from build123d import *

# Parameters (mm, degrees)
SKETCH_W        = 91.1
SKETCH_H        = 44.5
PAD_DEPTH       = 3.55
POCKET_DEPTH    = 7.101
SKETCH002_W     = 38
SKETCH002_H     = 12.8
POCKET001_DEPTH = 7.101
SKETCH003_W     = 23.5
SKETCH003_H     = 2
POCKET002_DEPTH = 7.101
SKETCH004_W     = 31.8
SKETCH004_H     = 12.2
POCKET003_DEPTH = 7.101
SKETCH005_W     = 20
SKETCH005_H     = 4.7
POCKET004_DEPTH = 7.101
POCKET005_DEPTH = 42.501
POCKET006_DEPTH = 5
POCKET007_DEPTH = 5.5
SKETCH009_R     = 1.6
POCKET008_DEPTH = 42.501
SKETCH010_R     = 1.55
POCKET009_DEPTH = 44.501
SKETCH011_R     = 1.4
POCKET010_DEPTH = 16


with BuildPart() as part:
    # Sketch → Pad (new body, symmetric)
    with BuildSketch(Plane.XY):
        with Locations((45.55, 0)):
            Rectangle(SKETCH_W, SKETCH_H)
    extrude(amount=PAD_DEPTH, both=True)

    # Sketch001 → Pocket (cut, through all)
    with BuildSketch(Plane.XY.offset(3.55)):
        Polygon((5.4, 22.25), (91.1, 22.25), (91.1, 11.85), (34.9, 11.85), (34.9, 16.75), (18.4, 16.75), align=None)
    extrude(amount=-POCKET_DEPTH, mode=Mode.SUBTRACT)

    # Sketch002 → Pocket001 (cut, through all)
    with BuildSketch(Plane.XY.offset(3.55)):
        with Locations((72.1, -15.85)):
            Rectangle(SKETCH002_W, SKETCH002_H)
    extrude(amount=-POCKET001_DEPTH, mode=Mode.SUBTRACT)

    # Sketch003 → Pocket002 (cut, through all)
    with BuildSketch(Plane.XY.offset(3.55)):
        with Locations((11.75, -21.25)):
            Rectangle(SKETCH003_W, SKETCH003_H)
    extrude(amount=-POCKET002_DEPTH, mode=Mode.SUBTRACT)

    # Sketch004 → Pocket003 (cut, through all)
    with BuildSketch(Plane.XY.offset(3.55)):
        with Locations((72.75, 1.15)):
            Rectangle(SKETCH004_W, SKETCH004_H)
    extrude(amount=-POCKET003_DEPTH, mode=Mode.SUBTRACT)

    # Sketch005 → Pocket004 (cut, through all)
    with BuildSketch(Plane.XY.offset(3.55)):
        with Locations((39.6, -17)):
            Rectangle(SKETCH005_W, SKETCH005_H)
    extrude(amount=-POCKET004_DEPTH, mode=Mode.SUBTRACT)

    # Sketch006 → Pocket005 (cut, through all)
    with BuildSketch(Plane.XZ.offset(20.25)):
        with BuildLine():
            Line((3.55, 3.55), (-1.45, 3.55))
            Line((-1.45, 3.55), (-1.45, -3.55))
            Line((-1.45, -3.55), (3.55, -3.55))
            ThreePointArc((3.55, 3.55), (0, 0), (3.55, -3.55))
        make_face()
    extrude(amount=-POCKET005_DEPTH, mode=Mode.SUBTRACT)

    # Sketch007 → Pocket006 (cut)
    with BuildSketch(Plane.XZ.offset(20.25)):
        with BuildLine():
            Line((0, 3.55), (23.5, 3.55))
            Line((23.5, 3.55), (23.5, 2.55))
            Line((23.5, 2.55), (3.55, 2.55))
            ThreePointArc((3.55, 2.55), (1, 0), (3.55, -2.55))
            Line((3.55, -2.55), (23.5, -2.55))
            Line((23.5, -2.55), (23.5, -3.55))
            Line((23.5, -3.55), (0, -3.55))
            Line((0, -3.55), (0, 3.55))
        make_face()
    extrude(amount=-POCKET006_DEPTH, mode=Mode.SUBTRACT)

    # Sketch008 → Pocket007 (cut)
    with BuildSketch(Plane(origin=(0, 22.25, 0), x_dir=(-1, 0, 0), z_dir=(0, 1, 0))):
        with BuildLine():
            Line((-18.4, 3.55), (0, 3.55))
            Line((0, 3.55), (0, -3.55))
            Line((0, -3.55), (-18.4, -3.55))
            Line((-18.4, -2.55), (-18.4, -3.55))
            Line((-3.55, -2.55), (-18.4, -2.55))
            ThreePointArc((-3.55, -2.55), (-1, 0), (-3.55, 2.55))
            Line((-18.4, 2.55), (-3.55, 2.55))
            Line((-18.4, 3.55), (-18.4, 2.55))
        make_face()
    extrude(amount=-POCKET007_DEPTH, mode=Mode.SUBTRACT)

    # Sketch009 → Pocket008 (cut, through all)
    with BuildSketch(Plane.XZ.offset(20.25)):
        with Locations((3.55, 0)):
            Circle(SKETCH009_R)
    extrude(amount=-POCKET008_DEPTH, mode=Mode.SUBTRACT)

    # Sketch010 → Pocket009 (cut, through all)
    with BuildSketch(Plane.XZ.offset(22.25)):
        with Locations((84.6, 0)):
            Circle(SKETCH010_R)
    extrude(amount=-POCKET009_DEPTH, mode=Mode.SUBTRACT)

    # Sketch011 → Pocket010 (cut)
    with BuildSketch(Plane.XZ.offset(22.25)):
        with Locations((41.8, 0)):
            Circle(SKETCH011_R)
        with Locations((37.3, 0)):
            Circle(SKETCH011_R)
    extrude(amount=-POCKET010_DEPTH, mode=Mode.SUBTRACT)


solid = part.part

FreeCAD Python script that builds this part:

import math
import FreeCAD as App
import Part
import Sketcher


def add_polygon(sketch, points):
    """Adds a closed chain of lines whose ends are joined by coincident constraints."""
    first, n = sketch.GeometryCount, len(points)
    for a, b in zip(points, points[1:] + points[:1]):
        sketch.addGeometry(Part.LineSegment(App.Vector(*a, 0), App.Vector(*b, 0)), False)
    for i in range(n):
        sketch.addConstraint(Sketcher.Constraint("Coincident", first + i, 2, first + (i + 1) % n, 1))

doc = App.newDocument("Part")
body = doc.addObject("PartDesign::Body", "Body")

sketch1 = body.newObject("Sketcher::SketchObject", "Sketch")
sketch1.AttachmentSupport = (doc.getObject("XY_Plane"), [""])
sketch1.MapMode = "FlatFace"
add_polygon(sketch1, [(0, 22.25), (0, -22.25), (91.1, -22.25), (91.1, 22.25)])
sketch1.addConstraint([
    Sketcher.Constraint("Vertical", 0),
    Sketcher.Constraint("Horizontal", 1),
    Sketcher.Constraint("Vertical", 2),
    Sketcher.Constraint("Horizontal", 3),
    Sketcher.Constraint("Symmetric", 0, 2, 3, 2, -1, 1),
    Sketcher.Constraint("DistanceX", 1, 1, 1, 2, 91.1),
    Sketcher.Constraint("DistanceY", 0, 2, 0, 1, 44.5),
])
pad1 = body.newObject("PartDesign::Pad", "Pad")
pad1.Profile = sketch1
pad1.Length = 7.1
pad1.Midplane = True

sketch2 = body.newObject("Sketcher::SketchObject", "Sketch001")
sketch2.AttachmentSupport = (doc.getObject("XY_Plane"), [""])
sketch2.MapMode = "FlatFace"
sketch2.AttachmentOffset = App.Placement(App.Vector(0, 0, 3.55), App.Rotation())
add_polygon(sketch2, [(91.1, 22.25), (5.4, 22.25), (18.4, 16.75), (34.9, 16.75), (34.9, 11.85), (91.1, 11.85)])
sketch2.addConstraint([
    Sketcher.Constraint("Horizontal", 0),
    Sketcher.Constraint("Horizontal", 2),
    Sketcher.Constraint("Vertical", 3),
    Sketcher.Constraint("Horizontal", 4),
    Sketcher.Constraint("Vertical", 5),
    Sketcher.Constraint("DistanceX", 0, 2, 0, 1, 85.7),
    Sketcher.Constraint("DistanceX", 2, 1, 2, 2, 16.5),
    Sketcher.Constraint("DistanceX", 4, 1, 4, 2, 56.2),
    Sketcher.Constraint("DistanceY", 3, 2, 3, 1, 4.9),
    Sketcher.Constraint("DistanceY", 5, 1, 5, 2, 10.4),
    Sketcher.Constraint("DistanceX", -1, 1, 0, 2, 5.4),
    Sketcher.Constraint("DistanceY", -1, 1, 0, 2, 22.25),
])
pocket1 = body.newObject("PartDesign::Pocket", "Pocket")
pocket1.Profile = sketch2
pocket1.Type = "ThroughAll"

sketch3 = body.newObject("Sketcher::SketchObject", "Sketch002")
sketch3.AttachmentSupport = (doc.getObject("XY_Plane"), [""])
sketch3.MapMode = "FlatFace"
sketch3.AttachmentOffset = App.Placement(App.Vector(0, 0, 3.55), App.Rotation())
add_polygon(sketch3, [(53.1, -9.45), (53.1, -22.25), (91.1, -22.25), (91.1, -9.45)])
sketch3.addConstraint([
    Sketcher.Constraint("Vertical", 0),
    Sketcher.Constraint("Horizontal", 1),
    Sketcher.Constraint("Vertical", 2),
    Sketcher.Constraint("Horizontal", 3),
    Sketcher.Constraint("DistanceX", 1, 1, 1, 2, 38.0),
    Sketcher.Constraint("DistanceY", 0, 2, 0, 1, 12.8),
    Sketcher.Constraint("DistanceX", -1, 1, 0, 2, 53.1),
    Sketcher.Constraint("DistanceY", 0, 2, -1, 1, 22.25),
])
pocket2 = body.newObject("PartDesign::Pocket", "Pocket001")
pocket2.Profile = sketch3
pocket2.Type = "ThroughAll"

sketch4 = body.newObject("Sketcher::SketchObject", "Sketch003")
sketch4.AttachmentSupport = (doc.getObject("XY_Plane"), [""])
sketch4.MapMode = "FlatFace"
sketch4.AttachmentOffset = App.Placement(App.Vector(0, 0, 3.55), App.Rotation())
add_polygon(sketch4, [(0, -20.25), (0, -22.25), (23.5, -22.25), (23.5, -20.25)])
sketch4.addConstraint([
    Sketcher.Constraint("Vertical", 0),
    Sketcher.Constraint("Horizontal", 1),
    Sketcher.Constraint("Vertical", 2),
    Sketcher.Constraint("Horizontal", 3),
    Sketcher.Constraint("PointOnObject", 0, 2, -2),
    Sketcher.Constraint("DistanceY", 0, 2, 0, 1, 2.0),
    Sketcher.Constraint("DistanceX", 1, 1, 1, 2, 23.5),
    Sketcher.Constraint("DistanceY", 0, 2, -1, 1, 22.25),
])
pocket3 = body.newObject("PartDesign::Pocket", "Pocket002")
pocket3.Profile = sketch4
pocket3.Type = "ThroughAll"

sketch5 = body.newObject("Sketcher::SketchObject", "Sketch004")
sketch5.AttachmentSupport = (doc.getObject("XY_Plane"), [""])
sketch5.MapMode = "FlatFace"
sketch5.AttachmentOffset = App.Placement(App.Vector(0, 0, 3.55), App.Rotation())
add_polygon(sketch5, [(56.85, 7.25), (56.85, -4.95), (88.65, -4.95), (88.65, 7.25)])
sketch5.addConstraint([
    Sketcher.Constraint("Vertical", 0),
    Sketcher.Constraint("Horizontal", 1),
    Sketcher.Constraint("Vertical", 2),
    Sketcher.Constraint("Horizontal", 3),
    Sketcher.Constraint("DistanceX", 1, 1, 1, 2, 31.8),
    Sketcher.Constraint("DistanceY", 0, 2, 0, 1, 12.2),
    Sketcher.Constraint("DistanceX", -1, 1, 0, 2, 56.85),
    Sketcher.Constraint("DistanceY", 0, 2, -1, 1, 4.95),
])
pocket4 = body.newObject("PartDesign::Pocket", "Pocket003")
pocket4.Profile = sketch5
pocket4.Type = "ThroughAll"

sketch6 = body.newObject("Sketcher::SketchObject", "Sketch005")
sketch6.AttachmentSupport = (doc.getObject("XY_Plane"), [""])
sketch6.MapMode = "FlatFace"
sketch6.AttachmentOffset = App.Placement(App.Vector(0, 0, 3.55), App.Rotation())
add_polygon(sketch6, [(29.6, -14.65), (29.6, -19.35), (49.6, -19.35), (49.6, -14.65)])
sketch6.addConstraint([
    Sketcher.Constraint("Vertical", 0),
    Sketcher.Constraint("Horizontal", 1),
    Sketcher.Constraint("Vertical", 2),
    Sketcher.Constraint("Horizontal", 3),
    Sketcher.Constraint("DistanceX", 1, 1, 1, 2, 20.0),
    Sketcher.Constraint("DistanceY", 0, 2, 0, 1, 4.7),
    Sketcher.Constraint("DistanceX", -1, 1, 0, 2, 29.6),
    Sketcher.Constraint("DistanceY", 0, 2, -1, 1, 19.35),
])
pocket5 = body.newObject("PartDesign::Pocket", "Pocket004")
pocket5.Profile = sketch6
pocket5.Type = "ThroughAll"

sketch7 = body.newObject("Sketcher::SketchObject", "Sketch006")
sketch7.AttachmentSupport = (doc.getObject("XZ_Plane"), [""])
sketch7.MapMode = "FlatFace"
sketch7.AttachmentOffset = App.Placement(App.Vector(0, 0, 20.25), App.Rotation())
sketch7.addGeometry([
    Part.LineSegment(App.Vector(3.55, 3.55, 0), App.Vector(-1.45, 3.55, 0)),
    Part.LineSegment(App.Vector(-1.45, 3.55, 0), App.Vector(-1.45, -3.55, 0)),
    Part.LineSegment(App.Vector(-1.45, -3.55, 0), App.Vector(3.55, -3.55, 0)),
    Part.ArcOfCircle(Part.Circle(App.Vector(3.55, 0, 0), App.Vector(0, 0, 1), 3.55), math.radians(90), math.radians(270)),
], False)
sketch7.addConstraint([
    Sketcher.Constraint("Coincident", 0, 2, 1, 1),
    Sketcher.Constraint("Coincident", 1, 2, 2, 1),
    Sketcher.Constraint("Tangent", 2, 2, 3, 2),
    Sketcher.Constraint("Tangent", 3, 1, 0, 1),
    Sketcher.Constraint("Horizontal", 0),
    Sketcher.Constraint("Vertical", 1),
    Sketcher.Constraint("Horizontal", 2),
    Sketcher.Constraint("PointOnObject", 3, 3, -1),
    Sketcher.Constraint("DistanceX", 0, 2, 0, 1, 5.0),
    Sketcher.Constraint("Radius", 3, 3.55),
    Sketcher.Constraint("DistanceX", -1, 1, 3, 3, 3.55),
])
pocket6 = body.newObject("PartDesign::Pocket", "Pocket005")
pocket6.Profile = sketch7
pocket6.Type = "ThroughAll"

sketch8 = body.newObject("Sketcher::SketchObject", "Sketch007")
sketch8.AttachmentSupport = (doc.getObject("XZ_Plane"), [""])
sketch8.MapMode = "FlatFace"
sketch8.AttachmentOffset = App.Placement(App.Vector(0, 0, 20.25), App.Rotation())
sketch8.addGeometry([
    Part.LineSegment(App.Vector(23.5, 3.55, 0), App.Vector(0, 3.55, 0)),
    Part.LineSegment(App.Vector(0, 3.55, 0), App.Vector(0, -3.55, 0)),
    Part.LineSegment(App.Vector(0, -3.55, 0), App.Vector(23.5, -3.55, 0)),
    Part.LineSegment(App.Vector(23.5, -3.55, 0), App.Vector(23.5, -2.55, 0)),
    Part.LineSegment(App.Vector(23.5, -2.55, 0), App.Vector(3.55, -2.55, 0)),
    Part.ArcOfCircle(Part.Circle(App.Vector(3.55, 0, 0), App.Vector(0, 0, 1), 2.55), math.radians(90), math.radians(270)),
    Part.LineSegment(App.Vector(3.55, 2.55, 0), App.Vector(23.5, 2.55, 0)),
    Part.LineSegment(App.Vector(23.5, 2.55, 0), App.Vector(23.5, 3.55, 0)),
], False)
sketch8.addConstraint([
    Sketcher.Constraint("Coincident", 0, 2, 1, 1),
    Sketcher.Constraint("Coincident", 1, 2, 2, 1),
    Sketcher.Constraint("Coincident", 2, 2, 3, 1),
    Sketcher.Constraint("Coincident", 3, 2, 4, 1),
    Sketcher.Constraint("Tangent", 4, 2, 5, 2),
    Sketcher.Constraint("Tangent", 5, 1, 6, 1),
    Sketcher.Constraint("Coincident", 6, 2, 7, 1),
    Sketcher.Constraint("Coincident", 7, 2, 0, 1),
    Sketcher.Constraint("Horizontal", 0),
    Sketcher.Constraint("Vertical", 1),
    Sketcher.Constraint("Horizontal", 2),
    Sketcher.Constraint("Vertical", 3),
    Sketcher.Constraint("Horizontal", 4),
    Sketcher.Constraint("Horizontal", 6),
    Sketcher.Constraint("Vertical", 7),
    Sketcher.Constraint("Symmetric", 0, 2, 1, 2, -1, 1),
    Sketcher.Constraint("Symmetric", 3, 2, 6, 2, -1),
    Sketcher.Constraint("DistanceY", 3, 1, 3, 2, 1.0),
    Sketcher.Constraint("Radius", 5, 2.55),
    Sketcher.Constraint("DistanceX", 0, 2, 0, 1, 23.5),
    Sketcher.Constraint("DistanceX", 4, 2, 4, 1, 19.95),
])
pocket7 = body.newObject("PartDesign::Pocket", "Pocket006")
pocket7.Profile = sketch8
pocket7.Length = 5

sketch9 = body.newObject("Sketcher::SketchObject", "Sketch008")
sketch9.AttachmentSupport = (doc.getObject("XZ_Plane"), [""])
sketch9.MapMode = "FlatFace"
sketch9.AttachmentOffset = App.Placement(App.Vector(0, 0, -22.25), App.Rotation())
sketch9.addGeometry([
    Part.LineSegment(App.Vector(0, 3.55, 0), App.Vector(18.4, 3.55, 0)),
    Part.LineSegment(App.Vector(18.4, 3.55, 0), App.Vector(18.4, 2.55, 0)),
    Part.LineSegment(App.Vector(18.4, 2.55, 0), App.Vector(3.55, 2.55, 0)),
    Part.ArcOfCircle(Part.Circle(App.Vector(3.55, 0, 0), App.Vector(0, 0, 1), 2.55), math.radians(90), math.radians(270)),
    Part.LineSegment(App.Vector(3.55, -2.55, 0), App.Vector(18.4, -2.55, 0)),
    Part.LineSegment(App.Vector(18.4, -2.55, 0), App.Vector(18.4, -3.55, 0)),
    Part.LineSegment(App.Vector(18.4, -3.55, 0), App.Vector(0, -3.55, 0)),
    Part.LineSegment(App.Vector(0, -3.55, 0), App.Vector(0, 3.55, 0)),
], False)
sketch9.addConstraint([
    Sketcher.Constraint("Coincident", 0, 2, 1, 1),
    Sketcher.Constraint("Coincident", 1, 2, 2, 1),
    Sketcher.Constraint("Tangent", 2, 2, 3, 1),
    Sketcher.Constraint("Tangent", 3, 2, 4, 1),
    Sketcher.Constraint("Coincident", 4, 2, 5, 1),
    Sketcher.Constraint("Coincident", 5, 2, 6, 1),
    Sketcher.Constraint("Coincident", 6, 2, 7, 1),
    Sketcher.Constraint("Coincident", 7, 2, 0, 1),
    Sketcher.Constraint("Horizontal", 0),
    Sketcher.Constraint("Vertical", 1),
    Sketcher.Constraint("Horizontal", 2),
    Sketcher.Constraint("Horizontal", 4),
    Sketcher.Constraint("Vertical", 5),
    Sketcher.Constraint("Horizontal", 6),
    Sketcher.Constraint("Vertical", 7),
    Sketcher.Constraint("Symmetric", 6, 2, 7, 2, -1, 1),
    Sketcher.Constraint("Symmetric", 1, 2, 4, 2, -1),
    Sketcher.Constraint("DistanceY", 1, 2, 1, 1, 1.0),
    Sketcher.Constraint("Radius", 3, 2.55),
    Sketcher.Constraint("DistanceX", 0, 1, 0, 2, 18.4),
    Sketcher.Constraint("DistanceX", 2, 2, 2, 1, 14.85),
])
pocket8 = body.newObject("PartDesign::Pocket", "Pocket007")
pocket8.Profile = sketch9
pocket8.Length = 5.5
pocket8.Reversed = True

sketch10 = body.newObject("Sketcher::SketchObject", "Sketch009")
sketch10.AttachmentSupport = (doc.getObject("XZ_Plane"), [""])
sketch10.MapMode = "FlatFace"
sketch10.AttachmentOffset = App.Placement(App.Vector(0, 0, 20.25), App.Rotation())
sketch10.addGeometry(Part.Circle(App.Vector(3.55, 0, 0), App.Vector(0, 0, 1), 1.6), False)
sketch10.addConstraint([
    Sketcher.Constraint("PointOnObject", 0, 3, -1),
    Sketcher.Constraint("Diameter", 0, 3.2),
    Sketcher.Constraint("DistanceX", -1, 1, 0, 3, 3.55),
])
pocket9 = body.newObject("PartDesign::Pocket", "Pocket008")
pocket9.Profile = sketch10
pocket9.Type = "ThroughAll"

sketch11 = body.newObject("Sketcher::SketchObject", "Sketch010")
sketch11.AttachmentSupport = (doc.getObject("XZ_Plane"), [""])
sketch11.MapMode = "FlatFace"
sketch11.AttachmentOffset = App.Placement(App.Vector(0, 0, 22.25), App.Rotation())
sketch11.addGeometry(Part.Circle(App.Vector(84.6, 0, 0), App.Vector(0, 0, 1), 1.55), False)
sketch11.addConstraint([
    Sketcher.Constraint("PointOnObject", 0, 3, -1),
    Sketcher.Constraint("Diameter", 0, 3.1),
    Sketcher.Constraint("DistanceX", -1, 1, 0, 3, 84.6),
])
pocket10 = body.newObject("PartDesign::Pocket", "Pocket009")
pocket10.Profile = sketch11
pocket10.Type = "ThroughAll"

sketch12 = body.newObject("Sketcher::SketchObject", "Sketch011")
sketch12.AttachmentSupport = (doc.getObject("XZ_Plane"), [""])
sketch12.MapMode = "FlatFace"
sketch12.AttachmentOffset = App.Placement(App.Vector(0, 0, 22.25), App.Rotation())
sketch12.addGeometry([
    Part.Circle(App.Vector(41.8, 0, 0), App.Vector(0, 0, 1), 1.4),
    Part.Circle(App.Vector(37.3, 0, 0), App.Vector(0, 0, 1), 1.4),
], False)
sketch12.addConstraint([
    Sketcher.Constraint("Equal", 0, 1),
    Sketcher.Constraint("PointOnObject", 0, 3, -1),
    Sketcher.Constraint("PointOnObject", 1, 3, -1),
    Sketcher.Constraint("Diameter", 0, 2.8),
    Sketcher.Constraint("DistanceX", -1, 1, 0, 3, 41.8),
    Sketcher.Constraint("DistanceX", -1, 1, 1, 3, 37.3),
])
pocket11 = body.newObject("PartDesign::Pocket", "Pocket010")
pocket11.Profile = sketch12
pocket11.Length = 16

doc.recompute()
